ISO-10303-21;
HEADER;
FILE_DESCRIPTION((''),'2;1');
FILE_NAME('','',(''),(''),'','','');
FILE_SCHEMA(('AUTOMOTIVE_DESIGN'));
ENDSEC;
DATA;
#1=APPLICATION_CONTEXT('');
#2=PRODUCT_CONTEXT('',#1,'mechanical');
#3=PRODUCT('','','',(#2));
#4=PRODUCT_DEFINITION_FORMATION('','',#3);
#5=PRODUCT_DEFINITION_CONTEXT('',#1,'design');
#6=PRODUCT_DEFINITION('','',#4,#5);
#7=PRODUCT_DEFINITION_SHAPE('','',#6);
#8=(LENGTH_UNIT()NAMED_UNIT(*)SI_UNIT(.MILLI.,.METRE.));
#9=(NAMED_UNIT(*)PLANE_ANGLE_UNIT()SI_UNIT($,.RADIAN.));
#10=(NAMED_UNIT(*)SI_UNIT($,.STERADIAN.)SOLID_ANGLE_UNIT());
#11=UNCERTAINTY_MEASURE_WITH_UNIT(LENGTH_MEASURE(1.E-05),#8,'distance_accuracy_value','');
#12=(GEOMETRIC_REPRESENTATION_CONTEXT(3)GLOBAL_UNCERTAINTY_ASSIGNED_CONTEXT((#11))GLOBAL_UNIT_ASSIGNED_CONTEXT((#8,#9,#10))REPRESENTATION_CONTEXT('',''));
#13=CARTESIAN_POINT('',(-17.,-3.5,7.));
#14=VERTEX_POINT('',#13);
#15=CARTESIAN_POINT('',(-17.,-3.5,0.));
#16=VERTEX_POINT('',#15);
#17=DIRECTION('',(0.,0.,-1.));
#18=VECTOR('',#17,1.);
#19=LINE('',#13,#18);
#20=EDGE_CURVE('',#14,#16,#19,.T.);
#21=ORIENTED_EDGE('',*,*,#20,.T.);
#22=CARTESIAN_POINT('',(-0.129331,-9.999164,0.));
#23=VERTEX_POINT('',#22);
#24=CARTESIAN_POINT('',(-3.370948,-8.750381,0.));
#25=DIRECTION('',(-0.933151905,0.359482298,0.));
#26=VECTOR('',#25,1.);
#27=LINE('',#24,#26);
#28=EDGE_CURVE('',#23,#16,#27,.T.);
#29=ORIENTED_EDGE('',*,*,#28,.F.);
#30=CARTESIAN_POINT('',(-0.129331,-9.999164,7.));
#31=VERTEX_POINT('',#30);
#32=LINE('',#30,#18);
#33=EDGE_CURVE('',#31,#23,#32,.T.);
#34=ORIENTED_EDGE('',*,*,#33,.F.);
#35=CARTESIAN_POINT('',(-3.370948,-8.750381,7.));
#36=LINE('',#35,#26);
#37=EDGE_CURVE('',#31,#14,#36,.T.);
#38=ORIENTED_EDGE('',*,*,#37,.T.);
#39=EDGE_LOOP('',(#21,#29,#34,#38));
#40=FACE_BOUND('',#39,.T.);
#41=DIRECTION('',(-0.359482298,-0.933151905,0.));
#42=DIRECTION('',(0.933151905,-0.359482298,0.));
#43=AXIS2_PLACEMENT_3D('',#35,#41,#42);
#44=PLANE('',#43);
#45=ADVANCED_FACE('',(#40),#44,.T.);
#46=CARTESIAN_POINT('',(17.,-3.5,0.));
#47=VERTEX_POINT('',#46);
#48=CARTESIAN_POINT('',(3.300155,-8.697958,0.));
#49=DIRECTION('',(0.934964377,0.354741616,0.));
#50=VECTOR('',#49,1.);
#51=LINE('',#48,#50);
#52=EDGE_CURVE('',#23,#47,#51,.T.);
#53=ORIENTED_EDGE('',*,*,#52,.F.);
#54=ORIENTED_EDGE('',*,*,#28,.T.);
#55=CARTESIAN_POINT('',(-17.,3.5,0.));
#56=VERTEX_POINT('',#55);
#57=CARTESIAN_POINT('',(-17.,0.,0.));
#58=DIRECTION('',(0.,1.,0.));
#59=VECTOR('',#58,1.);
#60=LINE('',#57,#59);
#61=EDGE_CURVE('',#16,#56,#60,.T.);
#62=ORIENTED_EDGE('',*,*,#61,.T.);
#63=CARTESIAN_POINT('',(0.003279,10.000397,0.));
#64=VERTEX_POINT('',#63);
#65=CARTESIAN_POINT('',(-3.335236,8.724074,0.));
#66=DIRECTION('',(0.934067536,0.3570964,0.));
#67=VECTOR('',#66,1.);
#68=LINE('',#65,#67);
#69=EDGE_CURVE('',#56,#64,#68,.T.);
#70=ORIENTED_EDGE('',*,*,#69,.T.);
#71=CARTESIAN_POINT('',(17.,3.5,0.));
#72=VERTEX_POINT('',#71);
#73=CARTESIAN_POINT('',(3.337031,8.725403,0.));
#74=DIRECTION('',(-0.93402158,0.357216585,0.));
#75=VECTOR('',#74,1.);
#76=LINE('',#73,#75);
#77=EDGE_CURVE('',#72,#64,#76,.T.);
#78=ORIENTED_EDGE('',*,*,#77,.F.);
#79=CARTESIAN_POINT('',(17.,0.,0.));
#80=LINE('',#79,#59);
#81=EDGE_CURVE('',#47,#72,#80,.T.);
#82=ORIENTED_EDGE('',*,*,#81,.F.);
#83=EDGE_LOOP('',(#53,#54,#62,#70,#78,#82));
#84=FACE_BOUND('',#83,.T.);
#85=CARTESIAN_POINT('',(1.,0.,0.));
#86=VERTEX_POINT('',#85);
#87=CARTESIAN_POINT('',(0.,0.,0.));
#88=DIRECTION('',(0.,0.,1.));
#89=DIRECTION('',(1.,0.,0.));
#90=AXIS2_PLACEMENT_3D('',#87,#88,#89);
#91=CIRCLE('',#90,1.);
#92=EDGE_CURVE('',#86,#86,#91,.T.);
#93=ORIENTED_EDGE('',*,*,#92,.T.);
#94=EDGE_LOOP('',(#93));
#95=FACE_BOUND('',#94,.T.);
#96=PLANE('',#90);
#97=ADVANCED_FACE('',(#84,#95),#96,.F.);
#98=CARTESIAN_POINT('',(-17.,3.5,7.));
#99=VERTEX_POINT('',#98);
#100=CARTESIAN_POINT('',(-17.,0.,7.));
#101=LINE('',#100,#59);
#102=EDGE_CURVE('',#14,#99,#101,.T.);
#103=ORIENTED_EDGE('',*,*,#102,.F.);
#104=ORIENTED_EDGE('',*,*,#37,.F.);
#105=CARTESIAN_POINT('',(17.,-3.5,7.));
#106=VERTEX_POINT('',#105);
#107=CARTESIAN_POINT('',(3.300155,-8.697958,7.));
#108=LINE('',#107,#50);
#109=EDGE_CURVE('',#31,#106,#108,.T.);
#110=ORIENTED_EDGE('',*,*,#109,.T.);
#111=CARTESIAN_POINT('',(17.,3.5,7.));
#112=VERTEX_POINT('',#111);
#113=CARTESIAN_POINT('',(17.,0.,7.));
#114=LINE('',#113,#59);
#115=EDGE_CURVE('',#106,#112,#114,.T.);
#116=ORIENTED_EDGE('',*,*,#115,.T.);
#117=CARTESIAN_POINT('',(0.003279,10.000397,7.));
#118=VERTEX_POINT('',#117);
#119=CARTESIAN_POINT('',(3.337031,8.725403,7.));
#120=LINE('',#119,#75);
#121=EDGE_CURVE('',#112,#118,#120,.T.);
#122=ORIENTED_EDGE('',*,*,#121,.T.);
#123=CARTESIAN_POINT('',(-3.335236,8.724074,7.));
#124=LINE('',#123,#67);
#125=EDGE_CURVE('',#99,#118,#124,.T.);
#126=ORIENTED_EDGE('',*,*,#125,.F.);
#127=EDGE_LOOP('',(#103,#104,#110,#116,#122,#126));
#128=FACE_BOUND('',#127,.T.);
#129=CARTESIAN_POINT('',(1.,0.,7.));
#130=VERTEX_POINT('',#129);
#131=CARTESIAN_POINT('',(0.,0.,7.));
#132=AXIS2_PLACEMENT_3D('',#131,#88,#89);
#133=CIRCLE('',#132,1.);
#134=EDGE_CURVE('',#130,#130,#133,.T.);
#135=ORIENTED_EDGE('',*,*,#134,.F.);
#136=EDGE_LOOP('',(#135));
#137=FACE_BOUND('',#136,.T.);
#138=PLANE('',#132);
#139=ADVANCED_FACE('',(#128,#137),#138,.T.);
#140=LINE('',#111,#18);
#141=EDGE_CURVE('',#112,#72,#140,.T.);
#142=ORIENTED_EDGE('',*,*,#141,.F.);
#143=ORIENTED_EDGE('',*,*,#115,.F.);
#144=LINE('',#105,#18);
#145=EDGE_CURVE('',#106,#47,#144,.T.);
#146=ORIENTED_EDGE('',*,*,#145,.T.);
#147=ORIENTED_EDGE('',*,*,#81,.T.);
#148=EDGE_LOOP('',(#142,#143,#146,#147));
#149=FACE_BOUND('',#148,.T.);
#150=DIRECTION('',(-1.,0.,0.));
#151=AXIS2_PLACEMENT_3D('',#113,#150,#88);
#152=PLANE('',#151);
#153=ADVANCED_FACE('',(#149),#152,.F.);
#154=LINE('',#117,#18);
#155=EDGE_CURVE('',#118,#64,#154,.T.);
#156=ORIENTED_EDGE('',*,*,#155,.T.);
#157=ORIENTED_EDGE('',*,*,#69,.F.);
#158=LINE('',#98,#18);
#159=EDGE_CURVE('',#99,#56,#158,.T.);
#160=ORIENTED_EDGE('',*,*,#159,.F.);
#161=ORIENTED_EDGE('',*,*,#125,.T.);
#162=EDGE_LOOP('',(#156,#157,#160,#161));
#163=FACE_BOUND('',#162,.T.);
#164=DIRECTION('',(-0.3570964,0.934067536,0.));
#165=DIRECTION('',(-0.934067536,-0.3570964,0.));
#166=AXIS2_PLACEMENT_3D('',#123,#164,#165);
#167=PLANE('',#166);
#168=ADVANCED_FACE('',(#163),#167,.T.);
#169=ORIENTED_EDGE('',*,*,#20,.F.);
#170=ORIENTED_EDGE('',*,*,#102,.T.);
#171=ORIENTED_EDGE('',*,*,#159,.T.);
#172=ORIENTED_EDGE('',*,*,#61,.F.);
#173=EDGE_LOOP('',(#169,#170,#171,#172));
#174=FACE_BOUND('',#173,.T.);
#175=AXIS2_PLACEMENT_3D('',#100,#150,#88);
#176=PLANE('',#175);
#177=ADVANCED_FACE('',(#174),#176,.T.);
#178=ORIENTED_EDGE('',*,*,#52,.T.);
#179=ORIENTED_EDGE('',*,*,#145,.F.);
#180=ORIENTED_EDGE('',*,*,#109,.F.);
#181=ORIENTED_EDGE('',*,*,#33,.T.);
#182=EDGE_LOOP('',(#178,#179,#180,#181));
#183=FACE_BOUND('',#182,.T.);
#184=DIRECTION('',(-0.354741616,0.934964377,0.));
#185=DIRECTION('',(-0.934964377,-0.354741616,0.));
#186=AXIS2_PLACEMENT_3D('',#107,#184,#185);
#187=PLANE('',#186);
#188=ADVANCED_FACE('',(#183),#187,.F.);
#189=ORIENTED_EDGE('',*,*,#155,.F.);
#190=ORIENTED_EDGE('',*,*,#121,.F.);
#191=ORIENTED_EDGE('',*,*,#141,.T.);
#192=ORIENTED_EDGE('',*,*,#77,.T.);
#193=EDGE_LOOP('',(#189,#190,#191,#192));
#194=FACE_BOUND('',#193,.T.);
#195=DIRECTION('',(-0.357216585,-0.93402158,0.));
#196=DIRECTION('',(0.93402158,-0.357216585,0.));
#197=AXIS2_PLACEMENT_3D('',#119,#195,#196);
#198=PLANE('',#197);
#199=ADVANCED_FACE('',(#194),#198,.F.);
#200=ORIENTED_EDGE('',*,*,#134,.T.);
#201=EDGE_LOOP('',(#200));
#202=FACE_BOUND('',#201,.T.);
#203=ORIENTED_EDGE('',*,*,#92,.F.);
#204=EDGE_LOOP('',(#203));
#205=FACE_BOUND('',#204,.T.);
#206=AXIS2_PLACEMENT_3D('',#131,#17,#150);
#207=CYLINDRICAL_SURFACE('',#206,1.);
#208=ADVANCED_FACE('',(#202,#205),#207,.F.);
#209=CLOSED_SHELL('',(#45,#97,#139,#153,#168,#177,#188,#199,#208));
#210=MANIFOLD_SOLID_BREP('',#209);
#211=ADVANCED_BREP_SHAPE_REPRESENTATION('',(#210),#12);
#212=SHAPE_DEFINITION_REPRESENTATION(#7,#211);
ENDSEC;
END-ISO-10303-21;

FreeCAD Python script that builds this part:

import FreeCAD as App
import Part
import Sketcher

V = App.Vector


def add_polygon(sketch, points):
    """Adds a closed chain of lines whose ends are joined by coincident constraints."""
    first, n = sketch.GeometryCount, len(points)
    for a, b in zip(points, points[1:] + points[:1]):
        sketch.addGeometry(Part.LineSegment(App.Vector(*a, 0), App.Vector(*b, 0)), False)
    for i in range(n):
        sketch.addConstraint(Sketcher.Constraint("Coincident", first + i, 2, first + (i + 1) % n, 1))

doc = App.newDocument("Part")
body = doc.addObject("PartDesign::Body", "Body")

# Sketch on XY plane
sketch1 = doc.addObject("Sketcher::SketchObject", "Sketch")
body.addObject(sketch1)
sketch1.AttachmentSupport = (doc.XY_Plane, [""])
sketch1.MapMode = "FlatFace"
add_polygon(sketch1, [(-17, -3.5), (-0.1, -10), (17, -3.5), (17, 3.5), (0, 10), (-17, 3.5)])  # lines 0-5
sketch1.addGeometry(Part.Circle(V(0, 0, 0), V(0, 0, 1), 1), False)  # 6
sketch1.addConstraint([
    Sketcher.Constraint("Vertical", 2),
    Sketcher.Constraint("Vertical", 5),
    Sketcher.Constraint("Coincident", 6, 3, -1, 1),
    Sketcher.Constraint("Symmetric", 1, 2, 4, 2, -1, 1),
    Sketcher.Constraint("Horizontal", 2, 2, 4, 2),
    Sketcher.Constraint("Horizontal", 1, 2, 5, 2),
    Sketcher.Constraint("Diameter", 6, 2.0),
    Sketcher.Constraint("DistanceY", 2, 1, 2, 2, 7.0),
    Sketcher.Constraint("DistanceX", -1, 1, 1, 2, 17.0),
    Sketcher.Constraint("Distance", 0, 18.079231),
    Sketcher.Constraint("Distance", 4, 18.203479),
    Sketcher.Constraint("DistanceX", 0, 2, -1, 1, 0.129331),
    Sketcher.Constraint("DistanceX", -1, 1, 3, 2, 0.003279),
])
pad1 = doc.addObject("PartDesign::Pad", "Pad")
body.addObject(pad1)
pad1.Profile = sketch1
pad1.Length = 7

doc.recompute()
